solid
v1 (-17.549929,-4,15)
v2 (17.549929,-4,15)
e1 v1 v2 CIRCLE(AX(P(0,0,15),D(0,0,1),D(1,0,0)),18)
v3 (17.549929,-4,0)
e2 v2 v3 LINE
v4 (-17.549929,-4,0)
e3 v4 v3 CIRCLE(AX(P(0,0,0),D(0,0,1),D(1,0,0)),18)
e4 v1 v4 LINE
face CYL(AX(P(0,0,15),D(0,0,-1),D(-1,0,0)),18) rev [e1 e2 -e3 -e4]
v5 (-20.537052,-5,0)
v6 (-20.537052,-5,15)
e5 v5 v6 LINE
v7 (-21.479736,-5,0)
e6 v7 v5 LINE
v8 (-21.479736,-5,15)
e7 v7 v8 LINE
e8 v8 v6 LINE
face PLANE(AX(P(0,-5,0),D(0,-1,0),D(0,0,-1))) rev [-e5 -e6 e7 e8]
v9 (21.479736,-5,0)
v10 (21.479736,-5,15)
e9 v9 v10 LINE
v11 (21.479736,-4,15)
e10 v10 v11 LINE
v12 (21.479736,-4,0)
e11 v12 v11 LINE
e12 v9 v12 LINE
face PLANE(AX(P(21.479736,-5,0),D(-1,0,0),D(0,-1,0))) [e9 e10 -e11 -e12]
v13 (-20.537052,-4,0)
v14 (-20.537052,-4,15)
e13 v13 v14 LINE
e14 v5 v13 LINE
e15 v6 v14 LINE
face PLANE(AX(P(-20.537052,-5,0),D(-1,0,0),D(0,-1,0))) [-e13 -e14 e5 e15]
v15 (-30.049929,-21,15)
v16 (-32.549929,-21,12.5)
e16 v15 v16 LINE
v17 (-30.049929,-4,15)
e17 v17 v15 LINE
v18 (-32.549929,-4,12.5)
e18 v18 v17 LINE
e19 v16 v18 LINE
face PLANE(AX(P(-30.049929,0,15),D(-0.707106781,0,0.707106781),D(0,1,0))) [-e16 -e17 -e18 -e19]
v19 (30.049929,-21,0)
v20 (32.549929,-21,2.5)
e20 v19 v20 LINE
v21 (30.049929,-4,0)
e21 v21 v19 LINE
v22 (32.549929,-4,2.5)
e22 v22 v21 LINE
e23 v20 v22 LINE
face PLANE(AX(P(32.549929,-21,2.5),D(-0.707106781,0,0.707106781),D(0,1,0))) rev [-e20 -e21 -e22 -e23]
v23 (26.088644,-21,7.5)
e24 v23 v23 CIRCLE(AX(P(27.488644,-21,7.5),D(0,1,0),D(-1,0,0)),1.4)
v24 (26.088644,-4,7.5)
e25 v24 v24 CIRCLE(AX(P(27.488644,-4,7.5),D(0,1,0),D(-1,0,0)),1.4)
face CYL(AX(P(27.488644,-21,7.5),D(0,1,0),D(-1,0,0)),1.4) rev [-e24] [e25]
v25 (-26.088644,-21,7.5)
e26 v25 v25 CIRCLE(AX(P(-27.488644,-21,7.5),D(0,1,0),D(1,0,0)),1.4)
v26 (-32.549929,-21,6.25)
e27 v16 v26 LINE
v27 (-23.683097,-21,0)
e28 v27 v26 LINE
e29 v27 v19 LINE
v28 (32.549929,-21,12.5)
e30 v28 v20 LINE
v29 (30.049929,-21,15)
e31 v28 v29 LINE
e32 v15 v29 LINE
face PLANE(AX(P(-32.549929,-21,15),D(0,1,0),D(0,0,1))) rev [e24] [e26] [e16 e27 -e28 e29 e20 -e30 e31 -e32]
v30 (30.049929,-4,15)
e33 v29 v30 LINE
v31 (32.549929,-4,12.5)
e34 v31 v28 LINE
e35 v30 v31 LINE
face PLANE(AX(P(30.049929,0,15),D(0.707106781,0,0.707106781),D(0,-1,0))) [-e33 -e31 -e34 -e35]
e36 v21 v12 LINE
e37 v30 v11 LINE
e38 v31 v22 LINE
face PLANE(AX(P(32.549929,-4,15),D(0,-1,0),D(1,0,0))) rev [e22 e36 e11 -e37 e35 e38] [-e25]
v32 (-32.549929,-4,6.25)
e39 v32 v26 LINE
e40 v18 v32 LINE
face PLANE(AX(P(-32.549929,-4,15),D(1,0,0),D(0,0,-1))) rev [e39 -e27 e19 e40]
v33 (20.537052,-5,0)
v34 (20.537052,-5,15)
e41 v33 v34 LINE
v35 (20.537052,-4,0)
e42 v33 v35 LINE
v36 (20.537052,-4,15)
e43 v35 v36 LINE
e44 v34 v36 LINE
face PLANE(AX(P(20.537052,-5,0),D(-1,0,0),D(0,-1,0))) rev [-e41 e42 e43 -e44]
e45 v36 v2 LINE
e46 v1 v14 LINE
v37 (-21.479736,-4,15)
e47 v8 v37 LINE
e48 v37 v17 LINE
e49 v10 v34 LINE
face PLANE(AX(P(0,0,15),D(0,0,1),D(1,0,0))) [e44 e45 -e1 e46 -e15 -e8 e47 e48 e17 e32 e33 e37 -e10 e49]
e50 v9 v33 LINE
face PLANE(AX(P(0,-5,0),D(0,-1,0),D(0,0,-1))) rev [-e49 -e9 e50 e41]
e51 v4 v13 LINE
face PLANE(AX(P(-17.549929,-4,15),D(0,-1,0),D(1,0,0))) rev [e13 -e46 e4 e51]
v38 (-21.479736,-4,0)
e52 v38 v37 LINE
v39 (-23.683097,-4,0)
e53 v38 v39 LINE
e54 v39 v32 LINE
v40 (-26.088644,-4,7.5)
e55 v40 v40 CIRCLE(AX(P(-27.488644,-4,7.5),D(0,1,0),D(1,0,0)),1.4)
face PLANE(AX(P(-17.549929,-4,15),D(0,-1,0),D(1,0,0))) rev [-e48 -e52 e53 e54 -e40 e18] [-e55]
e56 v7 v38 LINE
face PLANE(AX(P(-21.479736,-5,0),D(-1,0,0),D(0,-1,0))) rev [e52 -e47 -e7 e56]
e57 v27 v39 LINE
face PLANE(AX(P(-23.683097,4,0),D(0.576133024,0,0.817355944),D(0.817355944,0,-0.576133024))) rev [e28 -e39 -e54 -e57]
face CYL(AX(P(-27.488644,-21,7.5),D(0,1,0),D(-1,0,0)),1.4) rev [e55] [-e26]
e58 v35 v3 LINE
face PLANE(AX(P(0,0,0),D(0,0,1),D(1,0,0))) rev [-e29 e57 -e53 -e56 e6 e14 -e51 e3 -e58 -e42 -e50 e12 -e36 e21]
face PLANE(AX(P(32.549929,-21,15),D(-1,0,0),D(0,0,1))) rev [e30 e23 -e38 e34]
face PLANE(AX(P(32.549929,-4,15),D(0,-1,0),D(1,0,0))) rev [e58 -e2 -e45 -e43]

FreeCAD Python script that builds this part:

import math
import FreeCAD as App
import Part
import Sketcher


def edges_at(feature, points):
    """Names of the edges that pass closest to the given points."""
    edges = feature.Shape.Edges
    near = lambda p: min(range(len(edges)), key=lambda i: edges[i].distToShape(Part.Vertex(*p))[0])
    return sorted({f"Edge{near(p) + 1}" for p in points})


def add_polygon(sketch, points):
    """Adds a closed chain of lines whose ends are joined by coincident constraints."""
    first, n = sketch.GeometryCount, len(points)
    for a, b in zip(points, points[1:] + points[:1]):
        sketch.addGeometry(Part.LineSegment(App.Vector(*a, 0), App.Vector(*b, 0)), False)
    for i in range(n):
        sketch.addConstraint(Sketcher.Constraint("Coincident", first + i, 2, first + (i + 1) % n, 1))

doc = App.newDocument("Part")
params = doc.addObject("Spreadsheet::Sheet", "Params")
for row, (alias, value) in enumerate([
    ("sketch1_radius", "18 mm"),
    ("sketch1_width", "15 mm"),
    ("sketch1_height", "17 mm"),
    ("pad1_length", "15 mm"),
    ("chamfer_size", "2.5 mm"),
    ("sketch2_diameter", "2.8 mm"),
    ("sketch3_height", "15 mm"),
    ("pocket2_length", "1 mm"),
    ("sketch4_height", "6.25 mm"),
    ("pocket3_length", "25 mm"),
], start=1):
    params.set(f"A{row}", alias)
    params.set(f"B{row}", "=" + value)
    params.setAlias(f"B{row}", alias)

body = doc.addObject("PartDesign::Body", "Body")

# Sketch on XY plane
sketch1 = doc.addObject("Sketcher::SketchObject", "Sketch")
body.addObject(sketch1)
sketch1.AttachmentSupport = (doc.XY_Plane, [""])
sketch1.MapMode = "FlatFace"
sketch1.addGeometry(Part.LineSegment(App.Vector(-18, -4, 0), App.Vector(-33, -4, 0)), False)
sketch1.addGeometry(Part.LineSegment(App.Vector(-33, -4, 0), App.Vector(-33, -21, 0)), False)
sketch1.addGeometry(Part.LineSegment(App.Vector(-33, -21, 0), App.Vector(33, -21, 0)), False)
sketch1.addGeometry(Part.LineSegment(App.Vector(33, -21, 0), App.Vector(33, -4, 0)), False)
sketch1.addGeometry(Part.LineSegment(App.Vector(33, -4, 0), App.Vector(18, -4, 0)), False)
sketch1.addGeometry(Part.ArcOfCircle(Part.Circle(App.Vector(0, 0, 0), App.Vector(0, 0, 1), 18), math.radians(-167), math.radians(-13)), False)
sketch1.addConstraint(Sketcher.Constraint("Coincident", 0, 2, 1, 1))
sketch1.addConstraint(Sketcher.Constraint("Coincident", 1, 2, 2, 1))
sketch1.addConstraint(Sketcher.Constraint("Coincident", 2, 2, 3, 1))
sketch1.addConstraint(Sketcher.Constraint("Coincident", 3, 2, 4, 1))
sketch1.addConstraint(Sketcher.Constraint("Coincident", 4, 2, 5, 2))
sketch1.addConstraint(Sketcher.Constraint("Coincident", 5, 1, 0, 1))
sketch1.addConstraint(Sketcher.Constraint("Horizontal", 0))
sketch1.addConstraint(Sketcher.Constraint("Vertical", 1))
sketch1.addConstraint(Sketcher.Constraint("Horizontal", 2))
sketch1.addConstraint(Sketcher.Constraint("Vertical", 3))
sketch1.addConstraint(Sketcher.Constraint("Horizontal", 4))
sketch1.addConstraint(Sketcher.Constraint("Coincident", 5, 3, -1, 1))
sketch1.addConstraint(Sketcher.Constraint("Symmetric", 0, 2, 3, 2, -2))
sketch1.addConstraint(Sketcher.Constraint("Radius", 5, 18.0))
sketch1.addConstraint(Sketcher.Constraint("DistanceX", 0, 2, 0, 1, 15.0))
sketch1.addConstraint(Sketcher.Constraint("DistanceY", 1, 2, 1, 1, 17.0))
sketch1.addConstraint(Sketcher.Constraint("DistanceY", 0, 2, -1, 1, 4.0))
sketch1.setExpression("Constraints[13]", "Params.sketch1_radius")
sketch1.setExpression("Constraints[14]", "Params.sketch1_width")
sketch1.setExpression("Constraints[15]", "Params.sketch1_height")
pad1 = doc.addObject("PartDesign::Pad", "Pad")
body.addObject(pad1)
pad1.Profile = sketch1
pad1.setExpression("Length", "Params.pad1_length")
doc.recompute()

chamfer = doc.addObject("PartDesign::Chamfer", "Chamfer")
body.addObject(chamfer)
chamfer.Base = (pad1, edges_at(pad1, [(-32.55, -12.5, 15), (32.55, -12.5, 15), (32.55, -12.5, 0)]))
chamfer.setExpression("Size", "Params.chamfer_size")

# Sketch on XZ plane
sketch2 = doc.addObject("Sketcher::SketchObject", "Sketch001")
body.addObject(sketch2)
sketch2.AttachmentSupport = (doc.XZ_Plane, [""])
sketch2.MapMode = "FlatFace"
sketch2.AttachmentOffset = App.Placement(App.Vector(0, 0, 4), App.Rotation())
sketch2.addGeometry(Part.Circle(App.Vector(27.5, 7.5, 0), App.Vector(0, 0, 1), 1.4), False)
sketch2.addGeometry(Part.Circle(App.Vector(-27.5, 7.5, 0), App.Vector(0, 0, 1), 1.4), False)
sketch2.addConstraint(Sketcher.Constraint("Equal", 0, 1))
sketch2.addConstraint(Sketcher.Constraint("Symmetric", 0, 3, 1, 3, -2))
sketch2.addConstraint(Sketcher.Constraint("Diameter", 0, 2.8))
sketch2.addConstraint(Sketcher.Constraint("DistanceY", -1, 1, 0, 3, 7.5))
sketch2.addConstraint(Sketcher.Constraint("DistanceX", 1, 3, 0, 3, 54.977289))
sketch2.setExpression("Constraints[2]", "Params.sketch2_diameter")
pocket1 = doc.addObject("PartDesign::Pocket", "Pocket")
body.addObject(pocket1)
pocket1.Profile = sketch2
pocket1.Type = "ThroughAll"
pocket1.Reversed = True

# Sketch on XZ plane
sketch3 = doc.addObject("Sketcher::SketchObject", "Sketch002")
body.addObject(sketch3)
sketch3.AttachmentSupport = (doc.XZ_Plane, [""])
sketch3.MapMode = "FlatFace"
sketch3.AttachmentOffset = App.Placement(App.Vector(0, 0, 4), App.Rotation())
add_polygon(sketch3, [(-21.5, 0), (-21.5, 15), (-20.5, 15), (-20.5, 0)])  # lines 0-3
sketch3.addConstraint(Sketcher.Constraint("Vertical", 0))
sketch3.addConstraint(Sketcher.Constraint("Horizontal", 1))
sketch3.addConstraint(Sketcher.Constraint("Vertical", 2))
sketch3.addConstraint(Sketcher.Constraint("Horizontal", 3))
sketch3.addConstraint(Sketcher.Constraint("PointOnObject", 2, 2, -1))
sketch3.addConstraint(Sketcher.Constraint("DistanceY", 0, 1, 0, 2, 15.0))
sketch3.addConstraint(Sketcher.Constraint("DistanceX", 1, 1, 1, 2, 0.942684))
sketch3.addConstraint(Sketcher.Constraint("DistanceX", 1, 2, -1, 1, 20.537052))
sketch3.setExpression("Constraints[9]", "Params.sketch3_height")
pocket2 = doc.addObject("PartDesign::Pocket", "Pocket001")
body.addObject(pocket2)
pocket2.Profile = sketch3
pocket2.setExpression("Length", "Params.pocket2_length")
pocket2.Reversed = True
doc.recompute()

mirrored = doc.addObject("PartDesign::Mirrored", "Mirrored")
body.addObject(mirrored)
mirrored.Originals = [pocket2]
mirrored.MirrorPlane = (doc.YZ_Plane, [""])
body.Tip = mirrored

# Sketch on XZ plane
sketch4 = doc.addObject("Sketcher::SketchObject", "Sketch003")
body.addObject(sketch4)
sketch4.AttachmentSupport = (doc.XZ_Plane, [""])
sketch4.MapMode = "FlatFace"
sketch4.AttachmentOffset = App.Placement(App.Vector(0, 0, 21), App.Rotation())
add_polygon(sketch4, [(-24, 0), (-33, 6), (-33, 0)])  # lines 0-2
sketch4.addConstraint(Sketcher.Constraint("Vertical", 1))
sketch4.addConstraint(Sketcher.Constraint("Horizontal", 2))
sketch4.addConstraint(Sketcher.Constraint("PointOnObject", 1, 2, -1))
sketch4.addConstraint(Sketcher.Constraint("DistanceY", 1, 2, 1, 1, 6.25))
sketch4.addConstraint(Sketcher.Constraint("DistanceX", 2, 1, 2, 2, 8.866832))
sketch4.addConstraint(Sketcher.Constraint("DistanceX", 0, 2, -1, 1, 32.549929))
sketch4.setExpression("Constraints[6]", "Params.sketch4_height")
pocket3 = doc.addObject("PartDesign::Pocket", "Pocket002")
body.addObject(pocket3)
pocket3.Profile = sketch4
pocket3.setExpression("Length", "Params.pocket3_length")

doc.recompute()
